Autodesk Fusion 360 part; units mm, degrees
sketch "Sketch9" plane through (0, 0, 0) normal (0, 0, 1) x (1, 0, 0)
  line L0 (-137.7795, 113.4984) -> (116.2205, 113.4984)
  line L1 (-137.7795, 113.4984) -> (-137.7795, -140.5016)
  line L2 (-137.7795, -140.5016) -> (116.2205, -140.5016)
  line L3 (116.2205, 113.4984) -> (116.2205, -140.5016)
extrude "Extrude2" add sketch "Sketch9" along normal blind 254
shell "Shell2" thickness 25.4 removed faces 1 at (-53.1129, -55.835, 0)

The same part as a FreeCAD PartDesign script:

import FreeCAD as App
import Part
import Sketcher

V = App.Vector
Q = App.Units.Quantity


def faces_at(feature, points):
    """Names of the faces that lie closest to the given points."""
    faces = feature.Shape.Faces
    near = lambda p: min(range(len(faces)), key=lambda i: faces[i].distToShape(Part.Vertex(*p))[0])
    return sorted({f"Face{near(p) + 1}" for p in points})

doc = App.newDocument("Part")
params = doc.addObject("Spreadsheet::Sheet", "Params")
for row, (alias, value) in enumerate([
    ("sketch1_width", "10 in"),
    ("pad1_length", "10 in"),
    ("thickness_wall", "1 in"),
], start=1):
    params.set(f"A{row}", alias)
    params.set(f"B{row}", "=" + value)
    params.setAlias(f"B{row}", alias)

body = doc.addObject("PartDesign::Body", "Body")

# Sketch on XY plane
sketch1 = doc.addObject("Sketcher::SketchObject", "Sketch")
body.addObject(sketch1)
sketch1.AttachmentSupport = (doc.XY_Plane, [""])
sketch1.MapMode = "FlatFace"
sketch1.addGeometry(Part.LineSegment(V(116, 113, 0), V(-138, 113, 0)), False)
sketch1.addGeometry(Part.LineSegment(V(-138, 113, 0), V(-138, -141, 0)), False)
sketch1.addGeometry(Part.LineSegment(V(-138, -141, 0), V(116, -141, 0)), False)
sketch1.addGeometry(Part.LineSegment(V(116, -141, 0), V(116, 113, 0)), False)
sketch1.addConstraint(Sketcher.Constraint("Coincident", 0, 2, 1, 1))
sketch1.addConstraint(Sketcher.Constraint("Coincident", 1, 2, 2, 1))
sketch1.addConstraint(Sketcher.Constraint("Coincident", 2, 2, 3, 1))
sketch1.addConstraint(Sketcher.Constraint("Coincident", 3, 2, 0, 1))
sketch1.addConstraint(Sketcher.Constraint("Horizontal", 0))
sketch1.addConstraint(Sketcher.Constraint("Vertical", 1))
sketch1.addConstraint(Sketcher.Constraint("Horizontal", 2))
sketch1.addConstraint(Sketcher.Constraint("Vertical", 3))
sketch1.addConstraint(Sketcher.Constraint("Equal", 2, 1))
sketch1.addConstraint(Sketcher.Constraint("DistanceX", 0, 2, 0, 1, Q("10 in")))
sketch1.addConstraint(Sketcher.Constraint("DistanceX", 0, 2, -1, 1, Q("5.4244 in")))
sketch1.addConstraint(Sketcher.Constraint("DistanceY", -1, 1, 0, 2, 113.4984))
sketch1.setExpression("Constraints[9]", "Params.sketch1_width")
pad1 = doc.addObject("PartDesign::Pad", "Pad")
body.addObject(pad1)
pad1.Profile = sketch1
pad1.setExpression("Length", "Params.pad1_length")
doc.recompute()

thickness = doc.addObject("PartDesign::Thickness", "Thickness")
body.addObject(thickness)
thickness.Base = (pad1, faces_at(pad1, [(-53.113, -55.835, 0)]))
thickness.setExpression("Value", "Params.thickness_wall")
thickness.Reversed = True
thickness.Join = "Intersection"

doc.recompute()
